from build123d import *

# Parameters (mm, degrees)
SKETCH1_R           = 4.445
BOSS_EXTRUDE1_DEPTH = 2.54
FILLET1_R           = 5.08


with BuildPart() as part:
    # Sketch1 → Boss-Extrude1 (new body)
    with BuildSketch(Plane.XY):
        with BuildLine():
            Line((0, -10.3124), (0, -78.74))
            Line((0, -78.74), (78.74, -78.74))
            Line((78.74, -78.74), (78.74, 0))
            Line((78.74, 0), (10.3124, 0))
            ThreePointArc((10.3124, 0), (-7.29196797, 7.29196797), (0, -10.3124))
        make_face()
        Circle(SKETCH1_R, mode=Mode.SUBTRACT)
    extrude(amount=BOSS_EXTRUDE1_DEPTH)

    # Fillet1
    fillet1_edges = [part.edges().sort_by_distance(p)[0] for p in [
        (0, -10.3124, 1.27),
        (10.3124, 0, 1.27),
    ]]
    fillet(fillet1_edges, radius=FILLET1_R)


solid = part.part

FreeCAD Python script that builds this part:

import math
import FreeCAD as App
import Part
import Sketcher
from FreeCAD import Vector
Q = App.Units.Quantity


def edges_at(feature, points):
    """Names of the edges that pass closest to the given points."""
    edges = feature.Shape.Edges
    near = lambda p: min(range(len(edges)), key=lambda i: edges[i].distToShape(Part.Vertex(*p))[0])
    return sorted({f"Edge{near(p) + 1}" for p in points})

doc = App.newDocument("Part")
params = doc.addObject("Spreadsheet::Sheet", "Params")
for row, (alias, value) in enumerate([
    ("sketch1_diameter", "0.35 in"),
    ("sketch1_width", "3.1 in"),
    ("sketch1_radius", "0.406 in"),
    ("pad1_length", "0.1 in"),
    ("fillet_radius", "0.2 in"),
], start=1):
    params.set(f"A{row}", alias)
    params.set(f"B{row}", "=" + value)
    params.setAlias(f"B{row}", alias)

body = doc.addObject("PartDesign::Body", "Body")

# Sketch on XY plane
sketch1 = body.newObject("Sketcher::SketchObject", "Sketch")
sketch1.AttachmentSupport = (doc.getObject("XY_Plane"), [""])
sketch1.MapMode = "FlatFace"
sketch1.addGeometry(Part.LineSegment(Vector(0, -10.3, 0), Vector(0, -78.7, 0)), False)
sketch1.addGeometry(Part.LineSegment(Vector(0, -78.7, 0), Vector(78.7, -78.7, 0)), False)
sketch1.addGeometry(Part.LineSegment(Vector(78.7, -78.7, 0), Vector(78.7, 0, 0)), False)
sketch1.addGeometry(Part.LineSegment(Vector(78.7, 0, 0), Vector(10.3, 0, 0)), False)
sketch1.addGeometry(Part.ArcOfCircle(Part.Circle(Vector(0, 0, 0), Vector(0, 0, 1), 10.3), math.radians(0), math.radians(270)), False)
sketch1.addGeometry(Part.Circle(Vector(0, 0, 0), Vector(0, 0, 1), 4.4), False)
sketch1.addConstraint(Sketcher.Constraint("Coincident", 0, 2, 1, 1))
sketch1.addConstraint(Sketcher.Constraint("Coincident", 1, 2, 2, 1))
sketch1.addConstraint(Sketcher.Constraint("Coincident", 2, 2, 3, 1))
sketch1.addConstraint(Sketcher.Constraint("Coincident", 3, 2, 4, 1))
sketch1.addConstraint(Sketcher.Constraint("Coincident", 4, 2, 0, 1))
sketch1.addConstraint(Sketcher.Constraint("Vertical", 0))
sketch1.addConstraint(Sketcher.Constraint("Horizontal", 1))
sketch1.addConstraint(Sketcher.Constraint("Vertical", 2))
sketch1.addConstraint(Sketcher.Constraint("Horizontal", 3))
sketch1.addConstraint(Sketcher.Constraint("Coincident", 4, 3, -1, 1))
sketch1.addConstraint(Sketcher.Constraint("Coincident", 5, 3, -1, 1))
sketch1.addConstraint(Sketcher.Constraint("PointOnObject", 0, 2, -2))
sketch1.addConstraint(Sketcher.Constraint("PointOnObject", 2, 2, -1))
sketch1.addConstraint(Sketcher.Constraint("Equal", 3, 0))
sketch1.addConstraint(Sketcher.Constraint("Diameter", 5, Q("0.35 in")))
sketch1.addConstraint(Sketcher.Constraint("DistanceX", 1, 1, 1, 2, Q("3.1 in")))
sketch1.addConstraint(Sketcher.Constraint("Radius", 4, Q("0.406 in")))
sketch1.setExpression("Constraints[14]", "Params.sketch1_diameter")
sketch1.setExpression("Constraints[15]", "Params.sketch1_width")
sketch1.setExpression("Constraints[16]", "Params.sketch1_radius")
pad1 = body.newObject("PartDesign::Pad", "Pad")
pad1.Profile = sketch1
pad1.setExpression("Length", "Params.pad1_length")
doc.recompute()

fillet = body.newObject("PartDesign::Fillet", "Fillet")
fillet.Base = (pad1, edges_at(pad1, [(0, -10.312, 1.27), (10.312, 0, 1.27)]))
fillet.setExpression("Radius", "Params.fillet_radius")

doc.recompute()
